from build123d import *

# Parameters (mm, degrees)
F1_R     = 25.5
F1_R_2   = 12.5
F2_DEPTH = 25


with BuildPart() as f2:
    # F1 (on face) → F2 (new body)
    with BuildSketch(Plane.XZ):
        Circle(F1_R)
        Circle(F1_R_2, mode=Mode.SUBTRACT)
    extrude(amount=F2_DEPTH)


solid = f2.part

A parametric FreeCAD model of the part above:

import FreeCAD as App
import Part
import Sketcher

V = App.Vector

doc = App.newDocument("Part")
body = doc.addObject("PartDesign::Body", "Body")

# Sketch on XZ plane
sketch1 = doc.addObject("Sketcher::SketchObject", "Sketch")
body.addObject(sketch1)
sketch1.AttachmentSupport = (doc.XZ_Plane, [""])
sketch1.MapMode = "FlatFace"
sketch1.addGeometry(Part.Circle(V(0, 0, 0), V(0, 0, 1), 25.5), False)
sketch1.addGeometry(Part.Circle(V(0, 0, 0), V(0, 0, 1), 12.5), False)
sketch1.addConstraint(Sketcher.Constraint("Coincident", 0, 3, -1, 1))
sketch1.addConstraint(Sketcher.Constraint("Coincident", 1, 3, -1, 1))
sketch1.addConstraint(Sketcher.Constraint("Diameter", 0, 51.0))
sketch1.addConstraint(Sketcher.Constraint("Diameter", 1, 25.0))
pad1 = doc.addObject("PartDesign::Pad", "Pad")
body.addObject(pad1)
pad1.Profile = sketch1
pad1.Length = 25

doc.recompute()
